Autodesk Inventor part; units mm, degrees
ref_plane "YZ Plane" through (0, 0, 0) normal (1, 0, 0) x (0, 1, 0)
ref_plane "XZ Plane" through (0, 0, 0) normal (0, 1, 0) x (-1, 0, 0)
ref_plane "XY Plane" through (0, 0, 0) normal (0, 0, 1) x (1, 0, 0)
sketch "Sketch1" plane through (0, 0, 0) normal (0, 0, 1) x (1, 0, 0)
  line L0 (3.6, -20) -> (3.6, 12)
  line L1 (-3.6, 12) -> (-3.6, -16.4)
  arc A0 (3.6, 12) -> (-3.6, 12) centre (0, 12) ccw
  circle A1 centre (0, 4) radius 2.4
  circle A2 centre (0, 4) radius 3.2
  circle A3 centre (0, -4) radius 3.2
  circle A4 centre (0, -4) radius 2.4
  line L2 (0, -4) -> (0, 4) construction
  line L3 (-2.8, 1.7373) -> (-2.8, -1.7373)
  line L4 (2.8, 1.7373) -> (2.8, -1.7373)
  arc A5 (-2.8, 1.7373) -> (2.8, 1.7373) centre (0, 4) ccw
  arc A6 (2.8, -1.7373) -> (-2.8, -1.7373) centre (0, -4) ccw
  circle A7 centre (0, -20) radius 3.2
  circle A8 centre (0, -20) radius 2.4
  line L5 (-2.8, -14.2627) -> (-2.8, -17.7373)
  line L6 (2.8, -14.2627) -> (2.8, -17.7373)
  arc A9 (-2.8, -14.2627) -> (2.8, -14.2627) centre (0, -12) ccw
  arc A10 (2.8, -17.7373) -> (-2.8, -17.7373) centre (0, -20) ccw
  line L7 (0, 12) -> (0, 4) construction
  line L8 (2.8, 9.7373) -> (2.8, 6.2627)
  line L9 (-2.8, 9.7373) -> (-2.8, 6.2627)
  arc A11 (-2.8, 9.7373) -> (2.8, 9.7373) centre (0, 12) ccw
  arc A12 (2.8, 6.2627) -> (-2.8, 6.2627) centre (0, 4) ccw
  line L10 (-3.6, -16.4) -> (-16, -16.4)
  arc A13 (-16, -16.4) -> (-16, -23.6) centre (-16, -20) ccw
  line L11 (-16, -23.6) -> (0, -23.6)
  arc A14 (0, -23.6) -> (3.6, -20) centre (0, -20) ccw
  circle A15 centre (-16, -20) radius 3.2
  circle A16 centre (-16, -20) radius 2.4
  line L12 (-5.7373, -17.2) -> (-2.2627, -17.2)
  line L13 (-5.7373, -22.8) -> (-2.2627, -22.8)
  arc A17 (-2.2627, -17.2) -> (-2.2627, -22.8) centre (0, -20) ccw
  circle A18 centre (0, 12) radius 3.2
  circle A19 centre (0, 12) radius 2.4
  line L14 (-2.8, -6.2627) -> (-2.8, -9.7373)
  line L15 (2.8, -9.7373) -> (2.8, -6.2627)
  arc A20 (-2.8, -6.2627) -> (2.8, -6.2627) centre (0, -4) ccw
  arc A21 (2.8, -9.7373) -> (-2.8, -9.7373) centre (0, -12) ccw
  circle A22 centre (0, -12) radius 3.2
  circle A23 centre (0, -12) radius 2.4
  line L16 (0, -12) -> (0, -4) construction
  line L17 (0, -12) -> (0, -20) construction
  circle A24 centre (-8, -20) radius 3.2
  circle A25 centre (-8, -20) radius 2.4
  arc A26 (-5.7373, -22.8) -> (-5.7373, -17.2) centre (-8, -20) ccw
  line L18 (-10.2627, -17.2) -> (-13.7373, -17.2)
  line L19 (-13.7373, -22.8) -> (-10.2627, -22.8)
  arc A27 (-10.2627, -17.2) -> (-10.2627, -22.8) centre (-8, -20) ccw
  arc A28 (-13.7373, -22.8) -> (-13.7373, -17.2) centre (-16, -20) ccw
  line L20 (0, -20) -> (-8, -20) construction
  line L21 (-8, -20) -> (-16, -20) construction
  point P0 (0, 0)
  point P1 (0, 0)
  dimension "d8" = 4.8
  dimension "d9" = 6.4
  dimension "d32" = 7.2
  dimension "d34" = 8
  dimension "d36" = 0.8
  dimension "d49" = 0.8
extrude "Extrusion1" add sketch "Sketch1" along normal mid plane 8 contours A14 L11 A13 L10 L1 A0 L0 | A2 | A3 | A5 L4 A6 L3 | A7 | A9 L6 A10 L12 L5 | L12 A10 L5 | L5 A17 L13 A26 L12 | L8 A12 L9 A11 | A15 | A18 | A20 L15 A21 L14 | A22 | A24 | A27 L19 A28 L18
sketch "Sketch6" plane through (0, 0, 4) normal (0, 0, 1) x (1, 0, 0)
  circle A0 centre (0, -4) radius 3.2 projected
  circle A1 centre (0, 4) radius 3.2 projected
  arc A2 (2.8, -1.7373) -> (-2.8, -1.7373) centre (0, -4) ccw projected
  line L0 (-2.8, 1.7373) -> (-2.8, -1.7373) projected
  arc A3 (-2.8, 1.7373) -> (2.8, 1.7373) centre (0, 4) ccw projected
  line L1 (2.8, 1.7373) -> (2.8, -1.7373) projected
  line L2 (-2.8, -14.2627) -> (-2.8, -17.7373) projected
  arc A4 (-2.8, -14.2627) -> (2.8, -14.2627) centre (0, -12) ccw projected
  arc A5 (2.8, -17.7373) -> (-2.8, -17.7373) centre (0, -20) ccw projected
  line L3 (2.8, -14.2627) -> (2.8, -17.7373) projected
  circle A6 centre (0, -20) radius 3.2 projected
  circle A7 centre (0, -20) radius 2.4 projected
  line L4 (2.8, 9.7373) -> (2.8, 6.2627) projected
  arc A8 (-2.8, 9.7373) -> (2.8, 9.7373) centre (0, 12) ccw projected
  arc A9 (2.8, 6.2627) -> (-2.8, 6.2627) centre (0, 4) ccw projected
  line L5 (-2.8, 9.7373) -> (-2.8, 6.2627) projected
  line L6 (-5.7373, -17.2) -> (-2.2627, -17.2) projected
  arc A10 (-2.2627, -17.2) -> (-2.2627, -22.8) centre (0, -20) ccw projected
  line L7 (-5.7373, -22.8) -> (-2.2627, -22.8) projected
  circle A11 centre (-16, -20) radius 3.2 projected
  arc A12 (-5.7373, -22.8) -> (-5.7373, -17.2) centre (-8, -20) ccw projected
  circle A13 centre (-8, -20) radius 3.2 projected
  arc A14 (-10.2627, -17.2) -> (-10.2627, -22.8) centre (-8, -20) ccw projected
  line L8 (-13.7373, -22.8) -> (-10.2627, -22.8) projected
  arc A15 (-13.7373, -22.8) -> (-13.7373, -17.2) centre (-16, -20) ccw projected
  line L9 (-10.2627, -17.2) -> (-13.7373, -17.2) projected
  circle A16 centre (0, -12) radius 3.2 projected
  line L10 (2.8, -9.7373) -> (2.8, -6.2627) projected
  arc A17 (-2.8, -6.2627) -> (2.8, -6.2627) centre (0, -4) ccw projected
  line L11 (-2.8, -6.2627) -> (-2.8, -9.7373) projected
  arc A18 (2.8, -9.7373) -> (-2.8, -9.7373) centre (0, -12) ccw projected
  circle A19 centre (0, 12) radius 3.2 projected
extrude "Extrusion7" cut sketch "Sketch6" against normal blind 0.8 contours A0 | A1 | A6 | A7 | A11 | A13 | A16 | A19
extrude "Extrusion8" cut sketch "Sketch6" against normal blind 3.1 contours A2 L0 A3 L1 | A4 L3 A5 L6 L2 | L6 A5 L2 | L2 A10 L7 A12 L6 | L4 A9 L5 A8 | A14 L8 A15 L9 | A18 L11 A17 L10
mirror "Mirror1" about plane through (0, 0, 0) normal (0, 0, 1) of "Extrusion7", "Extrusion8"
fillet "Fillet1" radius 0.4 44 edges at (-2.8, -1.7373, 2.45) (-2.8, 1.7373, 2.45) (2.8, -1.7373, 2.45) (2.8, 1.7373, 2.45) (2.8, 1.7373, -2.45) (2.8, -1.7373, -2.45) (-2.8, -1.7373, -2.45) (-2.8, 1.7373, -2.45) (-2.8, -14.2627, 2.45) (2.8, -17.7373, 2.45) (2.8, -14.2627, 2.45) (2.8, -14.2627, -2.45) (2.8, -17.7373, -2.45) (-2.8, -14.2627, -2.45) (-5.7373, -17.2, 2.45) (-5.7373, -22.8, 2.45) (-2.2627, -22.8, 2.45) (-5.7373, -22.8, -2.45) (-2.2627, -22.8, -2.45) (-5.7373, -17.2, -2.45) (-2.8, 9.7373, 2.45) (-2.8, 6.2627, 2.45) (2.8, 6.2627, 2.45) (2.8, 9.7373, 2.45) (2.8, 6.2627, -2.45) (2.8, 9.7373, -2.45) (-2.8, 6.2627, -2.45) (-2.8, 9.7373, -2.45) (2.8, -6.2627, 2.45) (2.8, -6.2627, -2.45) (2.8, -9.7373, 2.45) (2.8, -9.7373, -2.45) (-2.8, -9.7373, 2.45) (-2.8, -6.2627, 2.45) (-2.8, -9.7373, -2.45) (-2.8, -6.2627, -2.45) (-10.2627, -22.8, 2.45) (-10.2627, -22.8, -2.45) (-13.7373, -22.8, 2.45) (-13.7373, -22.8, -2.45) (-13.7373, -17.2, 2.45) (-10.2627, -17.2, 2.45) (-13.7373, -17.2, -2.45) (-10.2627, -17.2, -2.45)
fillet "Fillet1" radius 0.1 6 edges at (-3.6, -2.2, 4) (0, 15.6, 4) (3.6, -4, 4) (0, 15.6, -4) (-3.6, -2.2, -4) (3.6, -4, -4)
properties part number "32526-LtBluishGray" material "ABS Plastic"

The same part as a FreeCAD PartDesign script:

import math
import FreeCAD as App
import Part
import Sketcher

V = App.Vector


def edges_at(feature, points):
    """Names of the edges that pass closest to the given points."""
    edges = feature.Shape.Edges
    near = lambda p: min(range(len(edges)), key=lambda i: edges[i].distToShape(Part.Vertex(*p))[0])
    return sorted({f"Edge{near(p) + 1}" for p in points})

doc = App.newDocument("Part")
params = doc.addObject("Spreadsheet::Sheet", "Params")
for row, (alias, value) in enumerate([
    ("sketch1_diameter", "4.8 mm"),
    ("sketch1_radius", "3.6 mm"),
    ("pad1_length", "8 mm"),
    ("sketch2_diameter", "6.4 mm"),
    ("pocket1_length", "0.8 mm"),
    ("sketch3_radius", "3.6 mm"),
    ("pocket2_length", "3.1 mm"),
    ("fillet_radius", "0.4 mm"),
    ("fillet2_radius", "0.1 mm"),
], start=1):
    params.set(f"A{row}", alias)
    params.set(f"B{row}", "=" + value)
    params.setAlias(f"B{row}", alias)

body = doc.addObject("PartDesign::Body", "Body")

# Sketch on XY plane
sketch1 = doc.addObject("Sketcher::SketchObject", "Sketch")
body.addObject(sketch1)
sketch1.AttachmentSupport = (doc.XY_Plane, [""])
sketch1.MapMode = "FlatFace"
sketch1.addGeometry([
    Part.ArcOfCircle(Part.Circle(V(0, -20, 0), V(0, 0, 1), 3.6), math.radians(-90), math.radians(0)),  # 0
    Part.LineSegment(V(3.6, -20, 0), V(3.6, 12, 0)),  # 1
    Part.ArcOfCircle(Part.Circle(V(0, 12, 0), V(0, 0, 1), 3.6), math.radians(0), math.radians(180)),  # 2
    Part.LineSegment(V(-3.6, 12, 0), V(-3.6, -16.4, 0)),  # 3
    Part.LineSegment(V(-3.6, -16.4, 0), V(-16, -16.4, 0)),  # 4
    Part.ArcOfCircle(Part.Circle(V(-16, -20, 0), V(0, 0, 1), 3.6), math.radians(90), math.radians(270)),  # 5
    Part.LineSegment(V(-16, -23.6, 0), V(0, -23.6, 0)),  # 6
    Part.Circle(V(-16, -20, 0), V(0, 0, 1), 2.4),  # 7
    Part.Circle(V(-8, -20, 0), V(0, 0, 1), 2.4),  # 8
    Part.Circle(V(0, -20, 0), V(0, 0, 1), 2.4),  # 9
    Part.Circle(V(0, -12, 0), V(0, 0, 1), 2.4),  # 10
    Part.Circle(V(0, -4, 0), V(0, 0, 1), 2.4),  # 11
    Part.Circle(V(0, 4, 0), V(0, 0, 1), 2.4),  # 12
    Part.Circle(V(0, 12, 0), V(0, 0, 1), 2.4),  # 13
], False)
sketch1.addConstraint([
    Sketcher.Constraint("Tangent", 0, 2, 1, 1),
    Sketcher.Constraint("Tangent", 1, 2, 2, 1),
    Sketcher.Constraint("Tangent", 2, 2, 3, 1),
    Sketcher.Constraint("Coincident", 3, 2, 4, 1),
    Sketcher.Constraint("Tangent", 4, 2, 5, 1),
    Sketcher.Constraint("Tangent", 5, 2, 6, 1),
    Sketcher.Constraint("Tangent", 6, 2, 0, 1),
    Sketcher.Constraint("Vertical", 1),
    Sketcher.Constraint("Vertical", 3),
    Sketcher.Constraint("Horizontal", 4),
    Sketcher.Constraint("Horizontal", 6),
    Sketcher.Constraint("Coincident", 7, 3, 5, 3),
    Sketcher.Constraint("Coincident", 9, 3, 0, 3),
    Sketcher.Constraint("Coincident", 13, 3, 2, 3),
    Sketcher.Constraint("Equal", 0, 2),
    Sketcher.Constraint("Equal", 2, 5),
    Sketcher.Constraint("Equal", 7, 8),
    Sketcher.Constraint("Equal", 8, 9),
    Sketcher.Constraint("Equal", 9, 10),
    Sketcher.Constraint("Equal", 10, 11),
    Sketcher.Constraint("Equal", 11, 12),
    Sketcher.Constraint("Equal", 12, 13),
    Sketcher.Constraint("Symmetric", 2, 3, 10, 3, -1, 1),
    Sketcher.Constraint("Symmetric", 11, 3, 12, 3, -1, 1),
    Sketcher.Constraint("PointOnObject", 0, 3, -2),
    Sketcher.Constraint("PointOnObject", 11, 3, -2),
    Sketcher.Constraint("Horizontal", 7, 3, 8, 3),
    Sketcher.Constraint("Diameter", 7, 4.8),
    Sketcher.Constraint("Radius", 0, 3.6),
    Sketcher.Constraint("DistanceX", 8, 3, -1, 1, 8.0),
    Sketcher.Constraint("DistanceX", 5, 3, 8, 3, 8.0),
    Sketcher.Constraint("DistanceY", 0, 3, 10, 3, 8.0),
    Sketcher.Constraint("DistanceY", 10, 3, 11, 3, 8.0),
    Sketcher.Constraint("DistanceY", 11, 3, 12, 3, 8.0),
])
sketch1.setExpression("Constraints[27]", "Params.sketch1_diameter")
sketch1.setExpression("Constraints[28]", "Params.sketch1_radius")
pad1 = doc.addObject("PartDesign::Pad", "Pad")
body.addObject(pad1)
pad1.Profile = sketch1
pad1.setExpression("Length", "Params.pad1_length")
pad1.Midplane = True

# Sketch on XY plane
sketch2 = doc.addObject("Sketcher::SketchObject", "Sketch001")
body.addObject(sketch2)
sketch2.AttachmentSupport = (doc.XY_Plane, [""])
sketch2.MapMode = "FlatFace"
sketch2.AttachmentOffset = App.Placement(V(0, 0, 4), App.Rotation())
sketch2.addGeometry([
    Part.Circle(V(0, -4, 0), V(0, 0, 1), 3.2),  # 0
    Part.Circle(V(0, 4, 0), V(0, 0, 1), 3.2),  # 1
    Part.Circle(V(0, -20, 0), V(0, 0, 1), 3.2),  # 2
    Part.Circle(V(-16, -20, 0), V(0, 0, 1), 3.2),  # 3
    Part.Circle(V(-8, -20, 0), V(0, 0, 1), 3.2),  # 4
    Part.Circle(V(0, -12, 0), V(0, 0, 1), 3.2),  # 5
    Part.Circle(V(0, 12, 0), V(0, 0, 1), 3.2),  # 6
], False)
sketch2.addConstraint([
    Sketcher.Constraint("Equal", 0, 1),
    Sketcher.Constraint("Equal", 1, 2),
    Sketcher.Constraint("Equal", 2, 3),
    Sketcher.Constraint("Equal", 3, 4),
    Sketcher.Constraint("Equal", 4, 5),
    Sketcher.Constraint("Equal", 5, 6),
    Sketcher.Constraint("Symmetric", 0, 3, 1, 3, -1, 1),
    Sketcher.Constraint("Symmetric", 5, 3, 6, 3, -1, 1),
    Sketcher.Constraint("PointOnObject", 0, 3, -2),
    Sketcher.Constraint("PointOnObject", 2, 3, -2),
    Sketcher.Constraint("PointOnObject", 5, 3, -2),
    Sketcher.Constraint("Horizontal", 2, 3, 3, 3),
    Sketcher.Constraint("Horizontal", 3, 3, 4, 3),
    Sketcher.Constraint("Diameter", 0, 6.4),
    Sketcher.Constraint("DistanceY", 0, 3, -1, 1, 4.0),
    Sketcher.Constraint("DistanceY", 2, 3, -1, 1, 20.0),
    Sketcher.Constraint("DistanceX", 3, 3, -1, 1, 16.0),
    Sketcher.Constraint("DistanceX", 4, 3, -1, 1, 8.0),
    Sketcher.Constraint("DistanceY", 5, 3, -1, 1, 12.0),
])
sketch2.setExpression("Constraints[13]", "Params.sketch2_diameter")
pocket1 = doc.addObject("PartDesign::Pocket", "Pocket")
body.addObject(pocket1)
pocket1.Profile = sketch2
pocket1.setExpression("Length", "Params.pocket1_length")

# Sketch on XY plane
sketch3 = doc.addObject("Sketcher::SketchObject", "Sketch002")
body.addObject(sketch3)
sketch3.AttachmentSupport = (doc.XY_Plane, [""])
sketch3.MapMode = "FlatFace"
sketch3.AttachmentOffset = App.Placement(V(0, 0, 4), App.Rotation())
sketch3.addGeometry([
    Part.ArcOfCircle(Part.Circle(V(0, -4, 0), V(0, 0, 1), 3.599974), math.radians(38.941925), math.radians(141.058075)),  # 0
    Part.LineSegment(V(2.8, -1.7373, 0), V(2.8, 1.7373, 0)),  # 1
    Part.ArcOfCircle(Part.Circle(V(0, 4, 0), V(0, 0, 1), 3.599974), math.radians(-141.058075), math.radians(-38.941925)),  # 2
    Part.LineSegment(V(-2.8, 1.7373, 0), V(-2.8, -1.7373, 0)),  # 3
    Part.ArcOfCircle(Part.Circle(V(0, -12, 0), V(0, 0, 1), 3.599974), math.radians(-141.058075), math.radians(-38.941925)),  # 4
    Part.LineSegment(V(-2.8, -14.2627, 0), V(-2.8, -17.2, 0)),  # 5
    Part.LineSegment(V(-2.8, -17.2, 0), V(-5.7373, -17.2, 0)),  # 6
    Part.ArcOfCircle(Part.Circle(V(-8, -20, 0), V(0, 0, 1), 3.599974), math.radians(-51.058075), math.radians(51.058075)),  # 7
    Part.LineSegment(V(-5.7373, -22.8, 0), V(-2.2627, -22.8, 0)),  # 8
    Part.ArcOfCircle(Part.Circle(V(0, -20, 0), V(0, 0, 1), 3.599974), math.radians(38.941925), math.radians(231.058075)),  # 9
    Part.LineSegment(V(2.8, -17.7373, 0), V(2.8, -14.2627, 0)),  # 10
    Part.LineSegment(V(2.8, 6.2627, 0), V(2.8, 9.7373, 0)),  # 11
    Part.ArcOfCircle(Part.Circle(V(0, 12, 0), V(0, 0, 1), 3.599974), math.radians(-141.058075), math.radians(-38.941925)),  # 12
    Part.LineSegment(V(-2.8, 9.7373, 0), V(-2.8, 6.2627, 0)),  # 13
    Part.ArcOfCircle(Part.Circle(V(0, 4, 0), V(0, 0, 1), 3.599974), math.radians(38.941925), math.radians(141.058075)),  # 14
    Part.ArcOfCircle(Part.Circle(V(-8, -20, 0), V(0, 0, 1), 3.599974), math.radians(128.941925), math.radians(231.058075)),  # 15
    Part.LineSegment(V(-10.2627, -17.2, 0), V(-13.7373, -17.2, 0)),  # 16
    Part.ArcOfCircle(Part.Circle(V(-16, -20, 0), V(0, 0, 1), 3.599974), math.radians(-51.058075), math.radians(51.058075)),  # 17
    Part.LineSegment(V(-13.7373, -22.8, 0), V(-10.2627, -22.8, 0)),  # 18
    Part.ArcOfCircle(Part.Circle(V(0, -12, 0), V(0, 0, 1), 3.599974), math.radians(38.941925), math.radians(141.058075)),  # 19
    Part.LineSegment(V(2.8, -9.7373, 0), V(2.8, -6.2627, 0)),  # 20
    Part.ArcOfCircle(Part.Circle(V(0, -4, 0), V(0, 0, 1), 3.599974), math.radians(-141.058075), math.radians(-38.941925)),  # 21
    Part.LineSegment(V(-2.8, -6.2627, 0), V(-2.8, -9.7373, 0)),  # 22
], False)
sketch3.addConstraint([
    Sketcher.Constraint("Coincident", 0, 1, 1, 1),
    Sketcher.Constraint("Coincident", 1, 2, 2, 2),
    Sketcher.Constraint("Coincident", 2, 1, 3, 1),
    Sketcher.Constraint("Coincident", 3, 2, 0, 2),
    Sketcher.Constraint("Coincident", 4, 1, 5, 1),
    Sketcher.Constraint("Coincident", 5, 2, 6, 1),
    Sketcher.Constraint("Coincident", 6, 2, 7, 2),
    Sketcher.Constraint("Coincident", 7, 1, 8, 1),
    Sketcher.Constraint("Coincident", 8, 2, 9, 2),
    Sketcher.Constraint("Coincident", 9, 1, 10, 1),
    Sketcher.Constraint("Coincident", 10, 2, 4, 2),
    Sketcher.Constraint("Coincident", 11, 2, 12, 2),
    Sketcher.Constraint("Coincident", 12, 1, 13, 1),
    Sketcher.Constraint("Coincident", 13, 2, 14, 2),
    Sketcher.Constraint("Coincident", 14, 1, 11, 1),
    Sketcher.Constraint("Coincident", 15, 1, 16, 1),
    Sketcher.Constraint("Coincident", 16, 2, 17, 2),
    Sketcher.Constraint("Coincident", 17, 1, 18, 1),
    Sketcher.Constraint("Coincident", 18, 2, 15, 2),
    Sketcher.Constraint("Coincident", 19, 1, 20, 1),
    Sketcher.Constraint("Coincident", 20, 2, 21, 2),
    Sketcher.Constraint("Coincident", 21, 1, 22, 1),
    Sketcher.Constraint("Coincident", 22, 2, 19, 2),
    Sketcher.Constraint("Vertical", 1),
    Sketcher.Constraint("Vertical", 3),
    Sketcher.Constraint("Vertical", 5),
    Sketcher.Constraint("Horizontal", 6),
    Sketcher.Constraint("Horizontal", 8),
    Sketcher.Constraint("Vertical", 10),
    Sketcher.Constraint("Vertical", 11),
    Sketcher.Constraint("Vertical", 13),
    Sketcher.Constraint("Horizontal", 16),
    Sketcher.Constraint("Horizontal", 18),
    Sketcher.Constraint("Vertical", 20),
    Sketcher.Constraint("Vertical", 22),
    Sketcher.Constraint("Coincident", 14, 3, 2, 3),
    Sketcher.Constraint("Coincident", 15, 3, 7, 3),
    Sketcher.Constraint("Coincident", 19, 3, 4, 3),
    Sketcher.Constraint("Coincident", 21, 3, 0, 3),
    Sketcher.Constraint("Equal", 0, 2),
    Sketcher.Constraint("Equal", 2, 4),
    Sketcher.Constraint("Equal", 4, 7),
    Sketcher.Constraint("Equal", 7, 9),
    Sketcher.Constraint("Equal", 9, 12),
    Sketcher.Constraint("Equal", 12, 14),
    Sketcher.Constraint("Equal", 14, 15),
    Sketcher.Constraint("Equal", 15, 17),
    Sketcher.Constraint("Equal", 17, 19),
    Sketcher.Constraint("Equal", 19, 21),
    Sketcher.Constraint("Symmetric", 0, 3, 2, 3, -1, 1),
    Sketcher.Constraint("Symmetric", 4, 3, 12, 3, -1, 1),
    Sketcher.Constraint("Symmetric", 1, 2, 2, 1, -2),
    Sketcher.Constraint("Symmetric", 4, 1, 10, 2, -2),
    Sketcher.Constraint("PointOnObject", 9, 3, -2),
    Sketcher.Constraint("Horizontal", 7, 3, 9, 3),
    Sketcher.Constraint("Horizontal", 15, 3, 17, 3),
    Sketcher.Constraint("Horizontal", 11, 2, 12, 1),
    Sketcher.Constraint("Horizontal", 6, 2, 15, 1),
    Sketcher.Constraint("Horizontal", 8, 2, 17, 1),
    Sketcher.Constraint("Horizontal", 20, 2, 21, 1),
    Sketcher.Constraint("Vertical", 3, 2, 4, 1),
    Sketcher.Constraint("Vertical", 6, 2, 7, 1),
    Sketcher.Constraint("Vertical", 10, 2, 11, 2),
    Sketcher.Constraint("Vertical", 14, 1, 19, 1),
    Sketcher.Constraint("Equal", 8, 16),
    Sketcher.Constraint("Equal", 18, 1),
    Sketcher.Constraint("Equal", 6, 5),
    Sketcher.Constraint("Equal", 3, 10),
    Sketcher.Constraint("Equal", 10, 11),
    Sketcher.Constraint("Radius", 0, 3.6),
    Sketcher.Constraint("DistanceY", 0, 3, -1, 1, 4.0),
    Sketcher.Constraint("DistanceX", -1, 1, 0, 1, 2.8),
])
sketch3.setExpression("Constraints[69]", "Params.sketch3_radius")
pocket2 = doc.addObject("PartDesign::Pocket", "Pocket001")
body.addObject(pocket2)
pocket2.Profile = sketch3
pocket2.setExpression("Length", "Params.pocket2_length")
doc.recompute()

mirrored = doc.addObject("PartDesign::Mirrored", "Mirrored")
body.addObject(mirrored)
mirrored.Originals = [pocket1, pocket2]
mirrored.MirrorPlane = (doc.XY_Plane, [""])
body.Tip = mirrored
doc.recompute()

fillet = doc.addObject("PartDesign::Fillet", "Fillet")
body.addObject(fillet)
fillet.Base = (mirrored, edges_at(mirrored, [
    (-2.8, -1.737, 2.45),
    (-2.8, 1.737, 2.45),
    (2.8, -1.737, 2.45),
    (2.8, 1.737, 2.45),
    (2.8, 1.737, -2.45),
    (2.8, -1.737, -2.45),
    (-2.8, -1.737, -2.45),
    (-2.8, 1.737, -2.45),
    (-2.8, -14.263, 2.45),
    (2.8, -17.737, 2.45),
    (2.8, -14.263, 2.45),
    (2.8, -14.263, -2.45),
    (2.8, -17.737, -2.45),
    (-2.8, -14.263, -2.45),
    (-5.737, -17.2, 2.45),
    (-5.737, -22.8, 2.45),
    (-2.263, -22.8, 2.45),
    (-5.737, -22.8, -2.45),
    (-2.263, -22.8, -2.45),
    (-5.737, -17.2, -2.45),
    (-2.8, 9.737, 2.45),
    (-2.8, 6.263, 2.45),
    (2.8, 6.263, 2.45),
    (2.8, 9.737, 2.45),
    (2.8, 6.263, -2.45),
    (2.8, 9.737, -2.45),
    (-2.8, 6.263, -2.45),
    (-2.8, 9.737, -2.45),
    (2.8, -6.263, 2.45),
    (2.8, -6.263, -2.45),
    (2.8, -9.737, 2.45),
    (2.8, -9.737, -2.45),
    (-2.8, -9.737, 2.45),
    (-2.8, -6.263, 2.45),
    (-2.8, -9.737, -2.45),
    (-2.8, -6.263, -2.45),
    (-10.263, -22.8, 2.45),
    (-10.263, -22.8, -2.45),
    (-13.737, -22.8, 2.45),
    (-13.737, -22.8, -2.45),
    (-13.737, -17.2, 2.45),
    (-10.263, -17.2, 2.45),
    (-13.737, -17.2, -2.45),
    (-10.263, -17.2, -2.45),
]))
fillet.setExpression("Radius", "Params.fillet_radius")
doc.recompute()

fillet2 = doc.addObject("PartDesign::Fillet", "Fillet001")
body.addObject(fillet2)
fillet2.Base = (fillet, edges_at(fillet, [
    (-3.6, -2.2, 4),
    (0, 15.6, 4),
    (3.6, -4, 4),
    (0, 15.6, -4),
    (-3.6, -2.2, -4),
    (3.6, -4, -4),
]))
fillet2.setExpression("Radius", "Params.fillet2_radius")

doc.recompute()
